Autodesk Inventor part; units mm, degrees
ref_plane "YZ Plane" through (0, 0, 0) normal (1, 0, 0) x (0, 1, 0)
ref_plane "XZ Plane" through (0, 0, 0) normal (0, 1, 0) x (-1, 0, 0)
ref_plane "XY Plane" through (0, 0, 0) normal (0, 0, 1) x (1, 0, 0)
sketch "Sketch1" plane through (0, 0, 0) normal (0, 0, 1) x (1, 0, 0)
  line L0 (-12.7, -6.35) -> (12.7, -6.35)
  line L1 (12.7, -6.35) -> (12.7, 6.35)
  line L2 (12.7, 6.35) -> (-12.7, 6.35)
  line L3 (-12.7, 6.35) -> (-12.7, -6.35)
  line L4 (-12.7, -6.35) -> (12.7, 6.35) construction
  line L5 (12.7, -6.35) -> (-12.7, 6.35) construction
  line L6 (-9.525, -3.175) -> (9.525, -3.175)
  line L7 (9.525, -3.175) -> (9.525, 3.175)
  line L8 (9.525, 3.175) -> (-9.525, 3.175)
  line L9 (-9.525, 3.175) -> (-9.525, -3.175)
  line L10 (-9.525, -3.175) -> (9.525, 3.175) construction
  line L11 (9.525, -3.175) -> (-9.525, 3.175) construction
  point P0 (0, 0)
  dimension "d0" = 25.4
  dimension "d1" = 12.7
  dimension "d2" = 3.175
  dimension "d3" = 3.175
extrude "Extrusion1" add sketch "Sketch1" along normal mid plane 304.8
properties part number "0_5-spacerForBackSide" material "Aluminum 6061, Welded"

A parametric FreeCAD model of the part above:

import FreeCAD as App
import Part
import Sketcher
Q = App.Units.Quantity


def add_polygon(sketch, points):
    """Adds a closed chain of lines whose ends are joined by coincident constraints."""
    first, n = sketch.GeometryCount, len(points)
    for a, b in zip(points, points[1:] + points[:1]):
        sketch.addGeometry(Part.LineSegment(App.Vector(*a, 0), App.Vector(*b, 0)), False)
    for i in range(n):
        sketch.addConstraint(Sketcher.Constraint("Coincident", first + i, 2, first + (i + 1) % n, 1))

doc = App.newDocument("Part")
body = doc.addObject("PartDesign::Body", "Body")

# Sketch on XY plane
sketch1 = body.newObject("Sketcher::SketchObject", "Sketch")
sketch1.AttachmentSupport = (doc.getObject("XY_Plane"), [""])
sketch1.MapMode = "FlatFace"
add_polygon(sketch1, [(-13, 6), (-13, -6), (13, -6), (13, 6)])  # lines 0-3
add_polygon(sketch1, [(10, -3), (-10, -3), (-10, 3), (10, 3)])  # lines 4-7
sketch1.addConstraint([
    Sketcher.Constraint("Vertical", 0),
    Sketcher.Constraint("Horizontal", 1),
    Sketcher.Constraint("Vertical", 2),
    Sketcher.Constraint("Horizontal", 3),
    Sketcher.Constraint("Horizontal", 4),
    Sketcher.Constraint("Vertical", 5),
    Sketcher.Constraint("Horizontal", 6),
    Sketcher.Constraint("Vertical", 7),
    Sketcher.Constraint("Symmetric", 0, 2, 2, 2, -1, 1),
    Sketcher.Constraint("Symmetric", 4, 2, 6, 2, -1, 1),
    Sketcher.Constraint("DistanceX", 1, 1, 1, 2, Q("1 in")),
    Sketcher.Constraint("DistanceY", 0, 2, 0, 1, Q("0.5 in")),
    Sketcher.Constraint("DistanceY", 4, 2, -1, 1, Q("0.125 in")),
    Sketcher.Constraint("DistanceX", 0, 2, 4, 2, Q("0.125 in")),
])
pad1 = body.newObject("PartDesign::Pad", "Pad")
pad1.Profile = sketch1
pad1.Length = Q("12 in")
pad1.Midplane = True

doc.recompute()
